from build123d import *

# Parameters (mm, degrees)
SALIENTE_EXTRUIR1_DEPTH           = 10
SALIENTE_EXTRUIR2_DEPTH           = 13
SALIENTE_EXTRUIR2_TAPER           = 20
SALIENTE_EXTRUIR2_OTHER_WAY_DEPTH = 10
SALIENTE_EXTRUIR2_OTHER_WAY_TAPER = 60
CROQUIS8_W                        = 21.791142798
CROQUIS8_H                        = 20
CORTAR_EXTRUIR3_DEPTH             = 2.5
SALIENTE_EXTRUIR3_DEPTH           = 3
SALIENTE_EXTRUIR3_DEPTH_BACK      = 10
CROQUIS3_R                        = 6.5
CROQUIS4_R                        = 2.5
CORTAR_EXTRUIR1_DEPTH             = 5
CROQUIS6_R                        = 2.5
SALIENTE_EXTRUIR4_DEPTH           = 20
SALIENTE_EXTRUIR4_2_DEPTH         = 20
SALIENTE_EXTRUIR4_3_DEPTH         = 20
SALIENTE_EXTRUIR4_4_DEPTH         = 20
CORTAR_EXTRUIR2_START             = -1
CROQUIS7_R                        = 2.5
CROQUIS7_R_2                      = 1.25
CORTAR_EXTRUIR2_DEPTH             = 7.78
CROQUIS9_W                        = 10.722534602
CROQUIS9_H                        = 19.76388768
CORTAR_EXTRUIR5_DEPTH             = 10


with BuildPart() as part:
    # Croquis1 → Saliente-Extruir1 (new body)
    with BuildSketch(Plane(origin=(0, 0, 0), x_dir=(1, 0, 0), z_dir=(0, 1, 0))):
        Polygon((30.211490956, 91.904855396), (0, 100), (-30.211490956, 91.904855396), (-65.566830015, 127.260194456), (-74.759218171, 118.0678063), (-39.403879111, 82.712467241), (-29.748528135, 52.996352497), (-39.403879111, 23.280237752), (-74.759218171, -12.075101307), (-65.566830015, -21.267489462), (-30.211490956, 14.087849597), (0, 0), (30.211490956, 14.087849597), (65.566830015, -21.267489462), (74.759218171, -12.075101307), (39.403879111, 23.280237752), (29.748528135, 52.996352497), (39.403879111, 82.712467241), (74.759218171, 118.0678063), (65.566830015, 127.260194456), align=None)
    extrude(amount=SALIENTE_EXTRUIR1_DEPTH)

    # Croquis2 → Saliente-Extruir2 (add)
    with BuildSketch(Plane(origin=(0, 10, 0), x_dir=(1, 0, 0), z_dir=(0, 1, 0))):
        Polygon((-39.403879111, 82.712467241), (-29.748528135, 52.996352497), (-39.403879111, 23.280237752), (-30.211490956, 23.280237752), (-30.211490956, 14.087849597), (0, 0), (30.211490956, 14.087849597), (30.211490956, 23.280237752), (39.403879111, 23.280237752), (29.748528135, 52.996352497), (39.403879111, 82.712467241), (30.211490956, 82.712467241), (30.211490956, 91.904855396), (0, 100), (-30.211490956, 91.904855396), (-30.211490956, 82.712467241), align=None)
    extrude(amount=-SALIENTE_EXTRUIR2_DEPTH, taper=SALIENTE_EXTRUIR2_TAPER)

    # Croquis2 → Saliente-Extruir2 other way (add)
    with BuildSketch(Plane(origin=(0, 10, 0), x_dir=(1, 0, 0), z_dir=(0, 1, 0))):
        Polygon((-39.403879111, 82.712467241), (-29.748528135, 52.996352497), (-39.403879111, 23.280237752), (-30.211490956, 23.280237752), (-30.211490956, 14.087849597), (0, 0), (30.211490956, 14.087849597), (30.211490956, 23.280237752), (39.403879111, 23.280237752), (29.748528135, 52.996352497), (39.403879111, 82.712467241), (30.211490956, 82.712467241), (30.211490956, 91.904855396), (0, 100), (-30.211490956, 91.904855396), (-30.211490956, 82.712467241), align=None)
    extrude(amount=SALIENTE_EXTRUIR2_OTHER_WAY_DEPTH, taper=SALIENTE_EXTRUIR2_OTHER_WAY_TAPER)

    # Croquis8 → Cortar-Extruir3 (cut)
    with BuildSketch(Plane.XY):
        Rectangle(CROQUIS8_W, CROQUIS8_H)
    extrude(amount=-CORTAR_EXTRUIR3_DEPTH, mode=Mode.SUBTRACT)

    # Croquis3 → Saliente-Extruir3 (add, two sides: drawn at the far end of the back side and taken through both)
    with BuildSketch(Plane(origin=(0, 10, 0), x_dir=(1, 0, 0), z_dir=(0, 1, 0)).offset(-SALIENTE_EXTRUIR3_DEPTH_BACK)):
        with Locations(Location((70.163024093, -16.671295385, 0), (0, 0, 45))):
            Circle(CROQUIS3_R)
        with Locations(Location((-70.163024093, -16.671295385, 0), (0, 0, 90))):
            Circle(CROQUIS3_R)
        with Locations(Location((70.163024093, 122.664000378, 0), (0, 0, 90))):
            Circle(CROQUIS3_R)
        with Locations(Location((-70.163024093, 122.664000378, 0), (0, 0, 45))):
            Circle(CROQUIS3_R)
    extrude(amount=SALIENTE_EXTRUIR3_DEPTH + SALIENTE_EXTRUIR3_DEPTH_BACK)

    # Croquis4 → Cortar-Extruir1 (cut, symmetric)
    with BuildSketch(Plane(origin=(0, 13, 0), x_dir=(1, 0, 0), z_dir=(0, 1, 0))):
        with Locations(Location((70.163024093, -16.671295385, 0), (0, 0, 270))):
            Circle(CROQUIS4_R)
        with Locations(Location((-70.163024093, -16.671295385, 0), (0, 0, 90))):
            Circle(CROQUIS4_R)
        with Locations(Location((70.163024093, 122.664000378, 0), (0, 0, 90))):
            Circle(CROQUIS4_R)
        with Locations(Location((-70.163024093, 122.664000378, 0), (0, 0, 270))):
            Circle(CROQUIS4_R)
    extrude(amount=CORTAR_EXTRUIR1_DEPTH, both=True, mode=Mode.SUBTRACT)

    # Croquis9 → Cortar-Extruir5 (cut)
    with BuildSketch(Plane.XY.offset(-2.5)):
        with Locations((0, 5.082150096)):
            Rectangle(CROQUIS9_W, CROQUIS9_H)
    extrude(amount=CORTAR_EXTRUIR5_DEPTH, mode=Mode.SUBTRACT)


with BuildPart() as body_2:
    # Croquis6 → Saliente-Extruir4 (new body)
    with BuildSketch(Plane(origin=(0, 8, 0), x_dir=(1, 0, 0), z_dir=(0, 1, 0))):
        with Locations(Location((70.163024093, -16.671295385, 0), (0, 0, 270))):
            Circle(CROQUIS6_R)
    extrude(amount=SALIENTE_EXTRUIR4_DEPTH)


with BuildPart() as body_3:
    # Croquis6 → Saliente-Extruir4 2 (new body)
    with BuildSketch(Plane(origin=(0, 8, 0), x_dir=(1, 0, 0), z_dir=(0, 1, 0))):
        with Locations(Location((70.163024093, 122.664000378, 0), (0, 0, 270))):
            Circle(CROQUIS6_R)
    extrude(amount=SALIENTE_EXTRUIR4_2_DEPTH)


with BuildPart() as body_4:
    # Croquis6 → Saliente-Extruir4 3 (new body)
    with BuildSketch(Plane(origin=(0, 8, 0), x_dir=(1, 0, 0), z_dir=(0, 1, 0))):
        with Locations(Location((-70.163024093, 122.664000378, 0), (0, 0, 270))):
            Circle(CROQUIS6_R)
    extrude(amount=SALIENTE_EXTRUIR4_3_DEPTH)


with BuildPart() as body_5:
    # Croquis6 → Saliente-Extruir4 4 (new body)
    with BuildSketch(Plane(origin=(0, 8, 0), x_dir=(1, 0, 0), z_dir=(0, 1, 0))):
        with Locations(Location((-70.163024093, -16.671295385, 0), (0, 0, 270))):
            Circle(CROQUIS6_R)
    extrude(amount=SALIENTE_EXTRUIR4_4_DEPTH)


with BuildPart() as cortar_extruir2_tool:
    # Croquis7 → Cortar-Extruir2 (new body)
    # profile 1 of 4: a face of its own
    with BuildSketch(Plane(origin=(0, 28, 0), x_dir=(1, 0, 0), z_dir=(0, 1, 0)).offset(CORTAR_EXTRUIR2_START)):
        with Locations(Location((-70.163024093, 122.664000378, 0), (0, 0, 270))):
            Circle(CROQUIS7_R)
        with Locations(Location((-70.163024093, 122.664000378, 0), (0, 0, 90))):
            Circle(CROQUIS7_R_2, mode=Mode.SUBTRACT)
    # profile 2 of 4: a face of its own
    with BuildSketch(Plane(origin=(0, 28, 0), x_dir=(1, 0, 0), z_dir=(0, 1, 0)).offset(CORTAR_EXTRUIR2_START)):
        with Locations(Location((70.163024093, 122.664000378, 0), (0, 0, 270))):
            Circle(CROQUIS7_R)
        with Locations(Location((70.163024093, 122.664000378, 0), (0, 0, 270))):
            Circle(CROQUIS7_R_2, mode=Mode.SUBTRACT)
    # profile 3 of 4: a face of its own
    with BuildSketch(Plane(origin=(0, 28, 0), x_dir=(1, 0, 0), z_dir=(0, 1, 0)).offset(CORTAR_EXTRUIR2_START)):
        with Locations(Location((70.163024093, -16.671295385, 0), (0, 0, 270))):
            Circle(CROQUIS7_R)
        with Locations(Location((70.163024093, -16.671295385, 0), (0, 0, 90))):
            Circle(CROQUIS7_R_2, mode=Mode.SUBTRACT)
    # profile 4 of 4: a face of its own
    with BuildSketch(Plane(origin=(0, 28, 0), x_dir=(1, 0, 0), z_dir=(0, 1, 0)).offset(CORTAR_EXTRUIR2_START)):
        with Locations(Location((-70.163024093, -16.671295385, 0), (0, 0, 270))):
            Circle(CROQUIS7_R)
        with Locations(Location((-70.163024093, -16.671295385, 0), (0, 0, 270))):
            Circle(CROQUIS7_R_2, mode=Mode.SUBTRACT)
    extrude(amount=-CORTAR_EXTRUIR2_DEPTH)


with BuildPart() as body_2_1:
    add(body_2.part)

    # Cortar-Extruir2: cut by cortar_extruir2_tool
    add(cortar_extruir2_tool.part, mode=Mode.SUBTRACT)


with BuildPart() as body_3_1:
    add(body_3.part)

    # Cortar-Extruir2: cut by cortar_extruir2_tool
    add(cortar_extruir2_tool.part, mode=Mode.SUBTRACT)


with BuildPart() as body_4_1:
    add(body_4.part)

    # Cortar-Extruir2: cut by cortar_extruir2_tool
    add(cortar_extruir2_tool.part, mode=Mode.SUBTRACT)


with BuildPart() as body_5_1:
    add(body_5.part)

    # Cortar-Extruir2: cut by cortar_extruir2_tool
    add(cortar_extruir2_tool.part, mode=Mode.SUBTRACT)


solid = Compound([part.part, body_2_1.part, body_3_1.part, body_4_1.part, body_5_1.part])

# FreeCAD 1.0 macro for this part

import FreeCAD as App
import Part
import Sketcher

V = App.Vector
Q = App.Units.Quantity

doc = App.newDocument("Part")
params = doc.addObject("Spreadsheet::Sheet", "Params")
for row, (alias, value) in enumerate([
    ("sketch1_length", "50 mm"),
    ("sketch1_length2", "13 mm"),
    ("pad1_length", "10 mm"),
    ("pad2_length", "13 mm"),
    ("pad2_taper", "-20 deg"),
    ("pad3_length", "10 mm"),
    ("pad3_taper", "-60 deg"),
    ("sketch4_height", "20 mm"),
    ("pocket1_length", "2.5 mm"),
    ("sketch5_diameter", "13 mm"),
    ("pad4_length", "3 mm"),
    ("pad4_length2", "10 mm"),
    ("sketch6_diameter", "5 mm"),
    ("pocket2_length", "10 mm"),
    ("pocket3_length", "10 mm"),
    ("sketch8_diameter", "5 mm"),
    ("pad5_length", "20 mm"),
    ("sketch9_diameter", "5 mm"),
    ("pad6_length", "20 mm"),
    ("sketch10_diameter", "5 mm"),
    ("pad7_length", "20 mm"),
    ("sketch11_diameter", "5 mm"),
    ("pad8_length", "20 mm"),
    ("sketch12_diameter", "5 mm"),
    ("sketch12_diameter2", "2.5 mm"),
    ("pad9_length", "7.78 mm"),
], start=1):
    params.set(f"A{row}", alias)
    params.set(f"B{row}", "=" + value)
    params.setAlias(f"B{row}", alias)

body = doc.addObject("PartDesign::Body", "Body")

sketch1 = doc.addObject("Sketcher::SketchObject", "Sketch")
body.addObject(sketch1)
sketch1.AttachmentSupport = (doc.XZ_Plane, [""])
sketch1.MapMode = "FlatFace"
sketch1.addGeometry([
    Part.LineSegment(V(30, -92, 0), V(0, -100, 0)),
    Part.LineSegment(V(0, -100, 0), V(-30, -92, 0)),
    Part.LineSegment(V(-30, -92, 0), V(-66, -127, 0)),
    Part.LineSegment(V(-66, -127, 0), V(-75, -118, 0)),
    Part.LineSegment(V(-75, -118, 0), V(-39, -83, 0)),
    Part.LineSegment(V(-39, -83, 0), V(-30, -53, 0)),
    Part.LineSegment(V(-30, -53, 0), V(-39, -23, 0)),
    Part.LineSegment(V(-39, -23, 0), V(-75, 12, 0)),
    Part.LineSegment(V(-75, 12, 0), V(-66, 21, 0)),
    Part.LineSegment(V(-66, 21, 0), V(-30, -14, 0)),
    Part.LineSegment(V(-30, -14, 0), V(0, 0, 0)),
    Part.LineSegment(V(0, 0, 0), V(30, -14, 0)),
    Part.LineSegment(V(30, -14, 0), V(66, 21, 0)),
    Part.LineSegment(V(66, 21, 0), V(75, 12, 0)),
    Part.LineSegment(V(75, 12, 0), V(39, -23, 0)),
    Part.LineSegment(V(39, -23, 0), V(30, -53, 0)),
    Part.LineSegment(V(30, -53, 0), V(39, -83, 0)),
    Part.LineSegment(V(39, -83, 0), V(75, -118, 0)),
    Part.LineSegment(V(75, -118, 0), V(66, -127, 0)),
    Part.LineSegment(V(66, -127, 0), V(30, -92, 0)),
], False)
sketch1.addConstraint([
    Sketcher.Constraint("Coincident", 0, 2, 1, 1),
    Sketcher.Constraint("Coincident", 1, 2, 2, 1),
    Sketcher.Constraint("Coincident", 2, 2, 3, 1),
    Sketcher.Constraint("Coincident", 3, 2, 4, 1),
    Sketcher.Constraint("Coincident", 4, 2, 5, 1),
    Sketcher.Constraint("Coincident", 5, 2, 6, 1),
    Sketcher.Constraint("Coincident", 6, 2, 7, 1),
    Sketcher.Constraint("Coincident", 7, 2, 8, 1),
    Sketcher.Constraint("Coincident", 8, 2, 9, 1),
    Sketcher.Constraint("Coincident", 9, 2, 10, 1),
    Sketcher.Constraint("Coincident", 10, 2, 11, 1),
    Sketcher.Constraint("Coincident", 11, 2, 12, 1),
    Sketcher.Constraint("Coincident", 12, 2, 13, 1),
    Sketcher.Constraint("Coincident", 13, 2, 14, 1),
    Sketcher.Constraint("Coincident", 14, 2, 15, 1),
    Sketcher.Constraint("Coincident", 15, 2, 16, 1),
    Sketcher.Constraint("Coincident", 16, 2, 17, 1),
    Sketcher.Constraint("Coincident", 17, 2, 18, 1),
    Sketcher.Constraint("Coincident", 18, 2, 19, 1),
    Sketcher.Constraint("Coincident", 19, 2, 0, 1),
    Sketcher.Constraint("Coincident", 10, 2, -1, 1),
    Sketcher.Constraint("Symmetric", 9, 2, 11, 2, -2),
    Sketcher.Constraint("Symmetric", 8, 2, 12, 2, -2),
    Sketcher.Constraint("Symmetric", 7, 2, 13, 2, -2),
    Sketcher.Constraint("Symmetric", 6, 2, 14, 2, -2),
    Sketcher.Constraint("Symmetric", 5, 2, 15, 2, -2),
    Sketcher.Constraint("Symmetric", 4, 2, 16, 2, -2),
    Sketcher.Constraint("Symmetric", 3, 2, 17, 2, -2),
    Sketcher.Constraint("Symmetric", 2, 2, 18, 2, -2),
    Sketcher.Constraint("Symmetric", 1, 2, 19, 2, -2),
    Sketcher.Constraint("PointOnObject", 0, 2, -2),
    Sketcher.Constraint("Perpendicular", 2, 3),
    Sketcher.Constraint("Perpendicular", 3, 4),
    Sketcher.Constraint("Perpendicular", 4, 7),
    Sketcher.Constraint("Perpendicular", 7, 8),
    Sketcher.Constraint("Perpendicular", 8, 9),
    Sketcher.Constraint("Perpendicular", 9, 12),
    Sketcher.Constraint("Parallel", 5, 15),
    Sketcher.Constraint("Vertical", 4, 2, 6, 2),
    Sketcher.Constraint("Vertical", 3, 2, 7, 2),
    Sketcher.Constraint("Vertical", 2, 2, 8, 2),
    Sketcher.Constraint("Vertical", 1, 2, 9, 2),
    Sketcher.Constraint("Equal", 2, 4),
    Sketcher.Constraint("Angle", 0, Q("-165 deg")),
    Sketcher.Constraint("Angle", 5, Q("72 deg")),
    Sketcher.Constraint("Angle", 10, Q("25 deg")),
    Sketcher.Constraint("Distance", 2, 50.0),
    Sketcher.Constraint("Distance", 3, 13.0),
    Sketcher.Constraint("DistanceY", 0, 2, -1, 1, 100.0),
    Sketcher.Constraint("DistanceY", -1, 1, 7, 2, 12.075101),
])
sketch1.setExpression("Constraints[46]", "Params.sketch1_length")
sketch1.setExpression("Constraints[47]", "Params.sketch1_length2")
pad1 = doc.addObject("PartDesign::Pad", "Pad")
body.addObject(pad1)
pad1.Profile = sketch1
pad1.setExpression("Length", "Params.pad1_length")
pad1.Reversed = True

sketch2 = doc.addObject("Sketcher::SketchObject", "Sketch001")
body.addObject(sketch2)
sketch2.AttachmentSupport = (doc.XZ_Plane, [""])
sketch2.MapMode = "FlatFace"
sketch2.AttachmentOffset = App.Placement(V(0, 0, -10), App.Rotation())
sketch2.addGeometry([
    Part.LineSegment(V(-39, -83, 0), V(-30, -53, 0)),
    Part.LineSegment(V(-30, -53, 0), V(-39, -23, 0)),
    Part.LineSegment(V(-39, -23, 0), V(-30, -23, 0)),
    Part.LineSegment(V(-30, -23, 0), V(-30, -14, 0)),
    Part.LineSegment(V(-30, -14, 0), V(0, 0, 0)),
    Part.LineSegment(V(0, 0, 0), V(30, -14, 0)),
    Part.LineSegment(V(30, -14, 0), V(30, -23, 0)),
    Part.LineSegment(V(30, -23, 0), V(39, -23, 0)),
    Part.LineSegment(V(39, -23, 0), V(30, -53, 0)),
    Part.LineSegment(V(30, -53, 0), V(39, -83, 0)),
    Part.LineSegment(V(39, -83, 0), V(30, -83, 0)),
    Part.LineSegment(V(30, -83, 0), V(30, -92, 0)),
    Part.LineSegment(V(30, -92, 0), V(0, -100, 0)),
    Part.LineSegment(V(0, -100, 0), V(-30, -92, 0)),
    Part.LineSegment(V(-30, -92, 0), V(-30, -83, 0)),
    Part.LineSegment(V(-30, -83, 0), V(-39, -83, 0)),
], False)
sketch2.addConstraint([
    Sketcher.Constraint("Coincident", 0, 2, 1, 1),
    Sketcher.Constraint("Coincident", 1, 2, 2, 1),
    Sketcher.Constraint("Coincident", 2, 2, 3, 1),
    Sketcher.Constraint("Coincident", 3, 2, 4, 1),
    Sketcher.Constraint("Coincident", 4, 2, 5, 1),
    Sketcher.Constraint("Coincident", 5, 2, 6, 1),
    Sketcher.Constraint("Coincident", 6, 2, 7, 1),
    Sketcher.Constraint("Coincident", 7, 2, 8, 1),
    Sketcher.Constraint("Coincident", 8, 2, 9, 1),
    Sketcher.Constraint("Coincident", 9, 2, 10, 1),
    Sketcher.Constraint("Coincident", 10, 2, 11, 1),
    Sketcher.Constraint("Coincident", 11, 2, 12, 1),
    Sketcher.Constraint("Coincident", 12, 2, 13, 1),
    Sketcher.Constraint("Coincident", 13, 2, 14, 1),
    Sketcher.Constraint("Coincident", 14, 2, 15, 1),
    Sketcher.Constraint("Coincident", 15, 2, 0, 1),
    Sketcher.Constraint("Horizontal", 2),
    Sketcher.Constraint("Vertical", 3),
    Sketcher.Constraint("Vertical", 6),
    Sketcher.Constraint("Horizontal", 7),
    Sketcher.Constraint("Horizontal", 10),
    Sketcher.Constraint("Vertical", 11),
    Sketcher.Constraint("Vertical", 14),
    Sketcher.Constraint("Horizontal", 15),
    Sketcher.Constraint("Coincident", 4, 2, -1, 1),
    Sketcher.Constraint("Symmetric", 3, 2, 5, 2, -2),
    Sketcher.Constraint("Symmetric", 1, 2, 7, 2, -2),
    Sketcher.Constraint("Symmetric", 0, 2, 8, 2, -2),
    Sketcher.Constraint("Symmetric", 11, 2, 13, 2, -2),
    Sketcher.Constraint("Symmetric", 9, 2, 15, 2, -2),
    Sketcher.Constraint("PointOnObject", 12, 2, -2),
    Sketcher.Constraint("Parallel", 0, 8),
    Sketcher.Constraint("Vertical", 7, 2, 9, 2),
    Sketcher.Constraint("Vertical", 6, 2, 10, 2),
    Sketcher.Constraint("Equal", 15, 3),
    Sketcher.Constraint("Equal", 6, 11),
    Sketcher.Constraint("Angle", 0, Q("72 deg")),
    Sketcher.Constraint("Angle", 4, Q("25 deg")),
    Sketcher.Constraint("Angle", 12, Q("-165 deg")),
    Sketcher.Constraint("DistanceY", 12, 2, -1, 1, 100.0),
    Sketcher.Constraint("DistanceX", 2, 1, 2, 2, 9.192388),
    Sketcher.Constraint("DistanceX", 0, 2, -1, 1, 29.748528),
])
pad2 = doc.addObject("PartDesign::Pad", "Pad001")
body.addObject(pad2)
pad2.Profile = sketch2
pad2.setExpression("Length", "Params.pad2_length")
pad2.setExpression("TaperAngle", "Params.pad2_taper")

sketch3 = doc.addObject("Sketcher::SketchObject", "Sketch002")
body.addObject(sketch3)
sketch3.AttachmentSupport = (doc.XZ_Plane, [""])
sketch3.MapMode = "FlatFace"
sketch3.AttachmentOffset = App.Placement(V(0, 0, -10), App.Rotation())
sketch3.addGeometry([
    Part.LineSegment(V(-39, -83, 0), V(-30, -53, 0)),
    Part.LineSegment(V(-30, -53, 0), V(-39, -23, 0)),
    Part.LineSegment(V(-39, -23, 0), V(-30, -23, 0)),
    Part.LineSegment(V(-30, -23, 0), V(-30, -14, 0)),
    Part.LineSegment(V(-30, -14, 0), V(0, 0, 0)),
    Part.LineSegment(V(0, 0, 0), V(30, -14, 0)),
    Part.LineSegment(V(30, -14, 0), V(30, -23, 0)),
    Part.LineSegment(V(30, -23, 0), V(39, -23, 0)),
    Part.LineSegment(V(39, -23, 0), V(30, -53, 0)),
    Part.LineSegment(V(30, -53, 0), V(39, -83, 0)),
    Part.LineSegment(V(39, -83, 0), V(30, -83, 0)),
    Part.LineSegment(V(30, -83, 0), V(30, -92, 0)),
    Part.LineSegment(V(30, -92, 0), V(0, -100, 0)),
    Part.LineSegment(V(0, -100, 0), V(-30, -92, 0)),
    Part.LineSegment(V(-30, -92, 0), V(-30, -83, 0)),
    Part.LineSegment(V(-30, -83, 0), V(-39, -83, 0)),
], False)
sketch3.addConstraint([
    Sketcher.Constraint("Coincident", 0, 2, 1, 1),
    Sketcher.Constraint("Coincident", 1, 2, 2, 1),
    Sketcher.Constraint("Coincident", 2, 2, 3, 1),
    Sketcher.Constraint("Coincident", 3, 2, 4, 1),
    Sketcher.Constraint("Coincident", 4, 2, 5, 1),
    Sketcher.Constraint("Coincident", 5, 2, 6, 1),
    Sketcher.Constraint("Coincident", 6, 2, 7, 1),
    Sketcher.Constraint("Coincident", 7, 2, 8, 1),
    Sketcher.Constraint("Coincident", 8, 2, 9, 1),
    Sketcher.Constraint("Coincident", 9, 2, 10, 1),
    Sketcher.Constraint("Coincident", 10, 2, 11, 1),
    Sketcher.Constraint("Coincident", 11, 2, 12, 1),
    Sketcher.Constraint("Coincident", 12, 2, 13, 1),
    Sketcher.Constraint("Coincident", 13, 2, 14, 1),
    Sketcher.Constraint("Coincident", 14, 2, 15, 1),
    Sketcher.Constraint("Coincident", 15, 2, 0, 1),
    Sketcher.Constraint("Horizontal", 2),
    Sketcher.Constraint("Vertical", 3),
    Sketcher.Constraint("Vertical", 6),
    Sketcher.Constraint("Horizontal", 7),
    Sketcher.Constraint("Horizontal", 10),
    Sketcher.Constraint("Vertical", 11),
    Sketcher.Constraint("Vertical", 14),
    Sketcher.Constraint("Horizontal", 15),
    Sketcher.Constraint("Coincident", 4, 2, -1, 1),
    Sketcher.Constraint("Symmetric", 3, 2, 5, 2, -2),
    Sketcher.Constraint("Symmetric", 1, 2, 7, 2, -2),
    Sketcher.Constraint("Symmetric", 0, 2, 8, 2, -2),
    Sketcher.Constraint("Symmetric", 11, 2, 13, 2, -2),
    Sketcher.Constraint("Symmetric", 9, 2, 15, 2, -2),
    Sketcher.Constraint("PointOnObject", 12, 2, -2),
    Sketcher.Constraint("Parallel", 0, 8),
    Sketcher.Constraint("Vertical", 7, 2, 9, 2),
    Sketcher.Constraint("Vertical", 6, 2, 10, 2),
    Sketcher.Constraint("Equal", 15, 3),
    Sketcher.Constraint("Equal", 6, 11),
    Sketcher.Constraint("Angle", 0, Q("72 deg")),
    Sketcher.Constraint("Angle", 4, Q("25 deg")),
    Sketcher.Constraint("Angle", 12, Q("-165 deg")),
    Sketcher.Constraint("DistanceY", 12, 2, -1, 1, 100.0),
    Sketcher.Constraint("DistanceX", 2, 1, 2, 2, 9.192388),
    Sketcher.Constraint("DistanceX", 0, 2, -1, 1, 29.748528),
])
pad3 = doc.addObject("PartDesign::Pad", "Pad002")
body.addObject(pad3)
pad3.Profile = sketch3
pad3.setExpression("Length", "Params.pad3_length")
pad3.Reversed = True
pad3.setExpression("TaperAngle", "Params.pad3_taper")

sketch4 = doc.addObject("Sketcher::SketchObject", "Sketch003")
body.addObject(sketch4)
sketch4.AttachmentSupport = (doc.XY_Plane, [""])
sketch4.MapMode = "FlatFace"
sketch4.addGeometry([
    Part.LineSegment(V(-11, 10, 0), V(-11, -10, 0)),
    Part.LineSegment(V(-11, -10, 0), V(11, -10, 0)),
    Part.LineSegment(V(11, -10, 0), V(11, 10, 0)),
    Part.LineSegment(V(11, 10, 0), V(-11, 10, 0)),
], False)
sketch4.addConstraint([
    Sketcher.Constraint("Coincident", 0, 2, 1, 1),
    Sketcher.Constraint("Coincident", 1, 2, 2, 1),
    Sketcher.Constraint("Coincident", 2, 2, 3, 1),
    Sketcher.Constraint("Coincident", 3, 2, 0, 1),
    Sketcher.Constraint("Vertical", 0),
    Sketcher.Constraint("Horizontal", 1),
    Sketcher.Constraint("Vertical", 2),
    Sketcher.Constraint("Horizontal", 3),
    Sketcher.Constraint("Symmetric", 0, 2, 2, 2, -1, 1),
    Sketcher.Constraint("DistanceY", 0, 2, 0, 1, 20.0),
    Sketcher.Constraint("DistanceX", 1, 1, 1, 2, 21.791143),
])
sketch4.setExpression("Constraints[9]", "Params.sketch4_height")
pocket1 = doc.addObject("PartDesign::Pocket", "Pocket")
body.addObject(pocket1)
pocket1.Profile = sketch4
pocket1.setExpression("Length", "Params.pocket1_length")

sketch5 = doc.addObject("Sketcher::SketchObject", "Sketch004")
body.addObject(sketch5)
sketch5.AttachmentSupport = (doc.XZ_Plane, [""])
sketch5.MapMode = "FlatFace"
sketch5.AttachmentOffset = App.Placement(V(0, 0, -10), App.Rotation())
sketch5.addGeometry([
    Part.Circle(V(70, 17, 0), V(0, 0, 1), 6),
    Part.Circle(V(-70, 17, 0), V(0, 0, 1), 6),
    Part.Circle(V(70, -123, 0), V(0, 0, 1), 6),
    Part.Circle(V(-70, -123, 0), V(0, 0, 1), 6),
], False)
sketch5.addConstraint([
    Sketcher.Constraint("Equal", 0, 1),
    Sketcher.Constraint("Equal", 1, 2),
    Sketcher.Constraint("Equal", 2, 3),
    Sketcher.Constraint("Symmetric", 0, 3, 1, 3, -2),
    Sketcher.Constraint("Symmetric", 2, 3, 3, 3, -2),
    Sketcher.Constraint("Vertical", 0, 3, 2, 3),
    Sketcher.Constraint("Diameter", 0, 13.0),
    Sketcher.Constraint("DistanceY", 2, 3, -1, 1, 122.664),
    Sketcher.Constraint("DistanceX", 1, 3, 0, 3, 140.326048),
    Sketcher.Constraint("DistanceY", -1, 1, 0, 3, 16.671295),
])
sketch5.setExpression("Constraints[6]", "Params.sketch5_diameter")
pad4 = doc.addObject("PartDesign::Pad", "Pad003")
body.addObject(pad4)
pad4.Profile = sketch5
pad4.Type = "TwoLengths"
pad4.setExpression("Length", "Params.pad4_length")
pad4.setExpression("Length2", "Params.pad4_length2")
pad4.Reversed = True

sketch6 = doc.addObject("Sketcher::SketchObject", "Sketch005")
body.addObject(sketch6)
sketch6.AttachmentSupport = (doc.XZ_Plane, [""])
sketch6.MapMode = "FlatFace"
sketch6.AttachmentOffset = App.Placement(V(0, 0, -13), App.Rotation())
sketch6.addGeometry([
    Part.Circle(V(70.2, 16.7, 0), V(0, 0, 1), 2.5),
    Part.Circle(V(-70.2, 16.7, 0), V(0, 0, 1), 2.5),
    Part.Circle(V(70.2, -122.7, 0), V(0, 0, 1), 2.5),
    Part.Circle(V(-70.2, -122.7, 0), V(0, 0, 1), 2.5),
], False)
sketch6.addConstraint([
    Sketcher.Constraint("Equal", 0, 1),
    Sketcher.Constraint("Equal", 1, 2),
    Sketcher.Constraint("Equal", 2, 3),
    Sketcher.Constraint("Symmetric", 0, 3, 1, 3, -2),
    Sketcher.Constraint("Symmetric", 2, 3, 3, 3, -2),
    Sketcher.Constraint("Vertical", 0, 3, 2, 3),
    Sketcher.Constraint("Diameter", 0, 5.0),
    Sketcher.Constraint("DistanceY", 2, 3, -1, 1, 122.664),
    Sketcher.Constraint("DistanceX", 1, 3, 0, 3, 140.326048),
    Sketcher.Constraint("DistanceY", -1, 1, 0, 3, 16.671295),
])
sketch6.setExpression("Constraints[6]", "Params.sketch6_diameter")
pocket2 = doc.addObject("PartDesign::Pocket", "Pocket001")
body.addObject(pocket2)
pocket2.Profile = sketch6
pocket2.setExpression("Length", "Params.pocket2_length")
pocket2.Midplane = True

sketch7 = doc.addObject("Sketcher::SketchObject", "Sketch006")
body.addObject(sketch7)
sketch7.AttachmentSupport = (doc.XY_Plane, [""])
sketch7.MapMode = "FlatFace"
sketch7.AttachmentOffset = App.Placement(V(0, 0, -2.5), App.Rotation())
sketch7.addGeometry([
    Part.LineSegment(V(-5, 15, 0), V(-5, -5, 0)),
    Part.LineSegment(V(-5, -5, 0), V(5, -5, 0)),
    Part.LineSegment(V(5, -5, 0), V(5, 15, 0)),
    Part.LineSegment(V(5, 15, 0), V(-5, 15, 0)),
], False)
sketch7.addConstraint([
    Sketcher.Constraint("Coincident", 0, 2, 1, 1),
    Sketcher.Constraint("Coincident", 1, 2, 2, 1),
    Sketcher.Constraint("Coincident", 2, 2, 3, 1),
    Sketcher.Constraint("Coincident", 3, 2, 0, 1),
    Sketcher.Constraint("Vertical", 0),
    Sketcher.Constraint("Horizontal", 1),
    Sketcher.Constraint("Vertical", 2),
    Sketcher.Constraint("Horizontal", 3),
    Sketcher.Constraint("DistanceX", 1, 1, 1, 2, 10.722535),
    Sketcher.Constraint("DistanceY", 0, 2, 0, 1, 19.763888),
    Sketcher.Constraint("DistanceX", 0, 2, -1, 1, 5.361267),
    Sketcher.Constraint("DistanceY", 0, 2, -1, 1, 4.799794),
])
pocket3 = doc.addObject("PartDesign::Pocket", "Pocket002")
body.addObject(pocket3)
pocket3.Profile = sketch7
pocket3.setExpression("Length", "Params.pocket3_length")
pocket3.Reversed = True
body2 = doc.addObject("PartDesign::Body", "Body001")

sketch8 = doc.addObject("Sketcher::SketchObject", "Sketch007")
body2.addObject(sketch8)
sketch8.AttachmentSupport = (doc.getObject("XZ_Plane001"), [""])
sketch8.MapMode = "FlatFace"
sketch8.AttachmentOffset = App.Placement(V(0, 0, -8), App.Rotation())
sketch8.addGeometry(Part.Circle(V(70.2, 16.7, 0), V(0, 0, 1), 2.5), False)
sketch8.addConstraint([
    Sketcher.Constraint("Diameter", 0, 5.0),
    Sketcher.Constraint("DistanceX", -1, 1, 0, 3, 70.163024),
    Sketcher.Constraint("DistanceY", -1, 1, 0, 3, 16.671295),
])
sketch8.setExpression("Constraints[0]", "Params.sketch8_diameter")
pad5 = doc.addObject("PartDesign::Pad", "Pad004")
body2.addObject(pad5)
pad5.Profile = sketch8
pad5.setExpression("Length", "Params.pad5_length")
pad5.Reversed = True
body3 = doc.addObject("PartDesign::Body", "Body002")

sketch9 = doc.addObject("Sketcher::SketchObject", "Sketch008")
body3.addObject(sketch9)
sketch9.AttachmentSupport = (doc.getObject("XZ_Plane002"), [""])
sketch9.MapMode = "FlatFace"
sketch9.AttachmentOffset = App.Placement(V(0, 0, -8), App.Rotation())
sketch9.addGeometry(Part.Circle(V(70.2, -122.7, 0), V(0, 0, 1), 2.5), False)
sketch9.addConstraint([
    Sketcher.Constraint("Diameter", 0, 5.0),
    Sketcher.Constraint("DistanceY", 0, 3, -1, 1, 122.664),
    Sketcher.Constraint("DistanceX", -1, 1, 0, 3, 70.163024),
])
sketch9.setExpression("Constraints[0]", "Params.sketch9_diameter")
pad6 = doc.addObject("PartDesign::Pad", "Pad005")
body3.addObject(pad6)
pad6.Profile = sketch9
pad6.setExpression("Length", "Params.pad6_length")
pad6.Reversed = True
body4 = doc.addObject("PartDesign::Body", "Body003")

sketch10 = doc.addObject("Sketcher::SketchObject", "Sketch009")
body4.addObject(sketch10)
sketch10.AttachmentSupport = (doc.getObject("XZ_Plane003"), [""])
sketch10.MapMode = "FlatFace"
sketch10.AttachmentOffset = App.Placement(V(0, 0, -8), App.Rotation())
sketch10.addGeometry(Part.Circle(V(-70.2, -122.7, 0), V(0, 0, 1), 2.5), False)
sketch10.addConstraint([
    Sketcher.Constraint("Diameter", 0, 5.0),
    Sketcher.Constraint("DistanceY", 0, 3, -1, 1, 122.664),
    Sketcher.Constraint("DistanceX", 0, 3, -1, 1, 70.163024),
])
sketch10.setExpression("Constraints[0]", "Params.sketch10_diameter")
pad7 = doc.addObject("PartDesign::Pad", "Pad006")
body4.addObject(pad7)
pad7.Profile = sketch10
pad7.setExpression("Length", "Params.pad7_length")
pad7.Reversed = True
body5 = doc.addObject("PartDesign::Body", "Body004")

sketch11 = doc.addObject("Sketcher::SketchObject", "Sketch010")
body5.addObject(sketch11)
sketch11.AttachmentSupport = (doc.getObject("XZ_Plane004"), [""])
sketch11.MapMode = "FlatFace"
sketch11.AttachmentOffset = App.Placement(V(0, 0, -8), App.Rotation())
sketch11.addGeometry(Part.Circle(V(-70.2, 16.7, 0), V(0, 0, 1), 2.5), False)
sketch11.addConstraint([
    Sketcher.Constraint("Diameter", 0, 5.0),
    Sketcher.Constraint("DistanceX", 0, 3, -1, 1, 70.163024),
    Sketcher.Constraint("DistanceY", -1, 1, 0, 3, 16.671295),
])
sketch11.setExpression("Constraints[0]", "Params.sketch11_diameter")
pad8 = doc.addObject("PartDesign::Pad", "Pad007")
body5.addObject(pad8)
pad8.Profile = sketch11
pad8.setExpression("Length", "Params.pad8_length")
pad8.Reversed = True
body6 = doc.addObject("PartDesign::Body", "Body005")
body6.AllowCompound = True

sketch12 = doc.addObject("Sketcher::SketchObject", "Sketch011")
body6.addObject(sketch12)
sketch12.AttachmentSupport = (doc.getObject("XZ_Plane005"), [""])
sketch12.MapMode = "FlatFace"
sketch12.AttachmentOffset = App.Placement(V(0, 0, -27), App.Rotation())
sketch12.addGeometry([
    Part.Circle(V(-70.2, -122.7, 0), V(0, 0, 1), 2.5),
    Part.Circle(V(-70.2, -122.7, 0), V(0, 0, 1), 1.2),
    Part.Circle(V(70.2, -122.7, 0), V(0, 0, 1), 2.5),
    Part.Circle(V(70.2, -122.7, 0), V(0, 0, 1), 1.2),
    Part.Circle(V(70.2, 16.7, 0), V(0, 0, 1), 2.5),
    Part.Circle(V(70.2, 16.7, 0), V(0, 0, 1), 1.2),
    Part.Circle(V(-70.2, 16.7, 0), V(0, 0, 1), 2.5),
    Part.Circle(V(-70.2, 16.7, 0), V(0, 0, 1), 1.2),
], False)
sketch12.addConstraint([
    Sketcher.Constraint("Coincident", 1, 3, 0, 3),
    Sketcher.Constraint("Coincident", 3, 3, 2, 3),
    Sketcher.Constraint("Coincident", 5, 3, 4, 3),
    Sketcher.Constraint("Coincident", 7, 3, 6, 3),
    Sketcher.Constraint("Equal", 0, 2),
    Sketcher.Constraint("Equal", 1, 3),
    Sketcher.Constraint("Equal", 2, 4),
    Sketcher.Constraint("Equal", 3, 5),
    Sketcher.Constraint("Equal", 4, 6),
    Sketcher.Constraint("Equal", 5, 7),
    Sketcher.Constraint("Symmetric", 0, 3, 2, 3, -2),
    Sketcher.Constraint("Symmetric", 4, 3, 6, 3, -2),
    Sketcher.Constraint("Vertical", 3, 3, 4, 3),
    Sketcher.Constraint("Diameter", 0, 5.0),
    Sketcher.Constraint("Diameter", 1, 2.5),
    Sketcher.Constraint("DistanceY", 0, 3, -1, 1, 122.664),
    Sketcher.Constraint("DistanceX", 0, 3, 2, 3, 140.326048),
    Sketcher.Constraint("DistanceY", -1, 1, 4, 3, 16.671295),
])
sketch12.setExpression("Constraints[13]", "Params.sketch12_diameter")
sketch12.setExpression("Constraints[14]", "Params.sketch12_diameter2")
pad9 = doc.addObject("PartDesign::Pad", "Pad008")
body6.addObject(pad9)
pad9.Profile = sketch12
pad9.setExpression("Length", "Params.pad9_length")
doc.recompute()

body7 = doc.addObject("PartDesign::Body", "Body006")
body7.BaseFeature = body6
boolean = doc.addObject("PartDesign::Boolean", "Boolean")
body2.addObject(boolean)
boolean.Type = "Cut"
boolean.addObjects([body7])
doc.recompute()

body8 = doc.addObject("PartDesign::Body", "Body007")
body8.BaseFeature = body6
boolean2 = doc.addObject("PartDesign::Boolean", "Boolean001")
body3.addObject(boolean2)
boolean2.Type = "Cut"
boolean2.addObjects([body8])
doc.recompute()

body9 = doc.addObject("PartDesign::Body", "Body008")
body9.BaseFeature = body6
boolean3 = doc.addObject("PartDesign::Boolean", "Boolean002")
body4.addObject(boolean3)
boolean3.Type = "Cut"
boolean3.addObjects([body9])
doc.recompute()

boolean4 = doc.addObject("PartDesign::Boolean", "Boolean003")
body5.addObject(boolean4)
boolean4.Type = "Cut"
boolean4.addObjects([body6])

doc.recompute()
